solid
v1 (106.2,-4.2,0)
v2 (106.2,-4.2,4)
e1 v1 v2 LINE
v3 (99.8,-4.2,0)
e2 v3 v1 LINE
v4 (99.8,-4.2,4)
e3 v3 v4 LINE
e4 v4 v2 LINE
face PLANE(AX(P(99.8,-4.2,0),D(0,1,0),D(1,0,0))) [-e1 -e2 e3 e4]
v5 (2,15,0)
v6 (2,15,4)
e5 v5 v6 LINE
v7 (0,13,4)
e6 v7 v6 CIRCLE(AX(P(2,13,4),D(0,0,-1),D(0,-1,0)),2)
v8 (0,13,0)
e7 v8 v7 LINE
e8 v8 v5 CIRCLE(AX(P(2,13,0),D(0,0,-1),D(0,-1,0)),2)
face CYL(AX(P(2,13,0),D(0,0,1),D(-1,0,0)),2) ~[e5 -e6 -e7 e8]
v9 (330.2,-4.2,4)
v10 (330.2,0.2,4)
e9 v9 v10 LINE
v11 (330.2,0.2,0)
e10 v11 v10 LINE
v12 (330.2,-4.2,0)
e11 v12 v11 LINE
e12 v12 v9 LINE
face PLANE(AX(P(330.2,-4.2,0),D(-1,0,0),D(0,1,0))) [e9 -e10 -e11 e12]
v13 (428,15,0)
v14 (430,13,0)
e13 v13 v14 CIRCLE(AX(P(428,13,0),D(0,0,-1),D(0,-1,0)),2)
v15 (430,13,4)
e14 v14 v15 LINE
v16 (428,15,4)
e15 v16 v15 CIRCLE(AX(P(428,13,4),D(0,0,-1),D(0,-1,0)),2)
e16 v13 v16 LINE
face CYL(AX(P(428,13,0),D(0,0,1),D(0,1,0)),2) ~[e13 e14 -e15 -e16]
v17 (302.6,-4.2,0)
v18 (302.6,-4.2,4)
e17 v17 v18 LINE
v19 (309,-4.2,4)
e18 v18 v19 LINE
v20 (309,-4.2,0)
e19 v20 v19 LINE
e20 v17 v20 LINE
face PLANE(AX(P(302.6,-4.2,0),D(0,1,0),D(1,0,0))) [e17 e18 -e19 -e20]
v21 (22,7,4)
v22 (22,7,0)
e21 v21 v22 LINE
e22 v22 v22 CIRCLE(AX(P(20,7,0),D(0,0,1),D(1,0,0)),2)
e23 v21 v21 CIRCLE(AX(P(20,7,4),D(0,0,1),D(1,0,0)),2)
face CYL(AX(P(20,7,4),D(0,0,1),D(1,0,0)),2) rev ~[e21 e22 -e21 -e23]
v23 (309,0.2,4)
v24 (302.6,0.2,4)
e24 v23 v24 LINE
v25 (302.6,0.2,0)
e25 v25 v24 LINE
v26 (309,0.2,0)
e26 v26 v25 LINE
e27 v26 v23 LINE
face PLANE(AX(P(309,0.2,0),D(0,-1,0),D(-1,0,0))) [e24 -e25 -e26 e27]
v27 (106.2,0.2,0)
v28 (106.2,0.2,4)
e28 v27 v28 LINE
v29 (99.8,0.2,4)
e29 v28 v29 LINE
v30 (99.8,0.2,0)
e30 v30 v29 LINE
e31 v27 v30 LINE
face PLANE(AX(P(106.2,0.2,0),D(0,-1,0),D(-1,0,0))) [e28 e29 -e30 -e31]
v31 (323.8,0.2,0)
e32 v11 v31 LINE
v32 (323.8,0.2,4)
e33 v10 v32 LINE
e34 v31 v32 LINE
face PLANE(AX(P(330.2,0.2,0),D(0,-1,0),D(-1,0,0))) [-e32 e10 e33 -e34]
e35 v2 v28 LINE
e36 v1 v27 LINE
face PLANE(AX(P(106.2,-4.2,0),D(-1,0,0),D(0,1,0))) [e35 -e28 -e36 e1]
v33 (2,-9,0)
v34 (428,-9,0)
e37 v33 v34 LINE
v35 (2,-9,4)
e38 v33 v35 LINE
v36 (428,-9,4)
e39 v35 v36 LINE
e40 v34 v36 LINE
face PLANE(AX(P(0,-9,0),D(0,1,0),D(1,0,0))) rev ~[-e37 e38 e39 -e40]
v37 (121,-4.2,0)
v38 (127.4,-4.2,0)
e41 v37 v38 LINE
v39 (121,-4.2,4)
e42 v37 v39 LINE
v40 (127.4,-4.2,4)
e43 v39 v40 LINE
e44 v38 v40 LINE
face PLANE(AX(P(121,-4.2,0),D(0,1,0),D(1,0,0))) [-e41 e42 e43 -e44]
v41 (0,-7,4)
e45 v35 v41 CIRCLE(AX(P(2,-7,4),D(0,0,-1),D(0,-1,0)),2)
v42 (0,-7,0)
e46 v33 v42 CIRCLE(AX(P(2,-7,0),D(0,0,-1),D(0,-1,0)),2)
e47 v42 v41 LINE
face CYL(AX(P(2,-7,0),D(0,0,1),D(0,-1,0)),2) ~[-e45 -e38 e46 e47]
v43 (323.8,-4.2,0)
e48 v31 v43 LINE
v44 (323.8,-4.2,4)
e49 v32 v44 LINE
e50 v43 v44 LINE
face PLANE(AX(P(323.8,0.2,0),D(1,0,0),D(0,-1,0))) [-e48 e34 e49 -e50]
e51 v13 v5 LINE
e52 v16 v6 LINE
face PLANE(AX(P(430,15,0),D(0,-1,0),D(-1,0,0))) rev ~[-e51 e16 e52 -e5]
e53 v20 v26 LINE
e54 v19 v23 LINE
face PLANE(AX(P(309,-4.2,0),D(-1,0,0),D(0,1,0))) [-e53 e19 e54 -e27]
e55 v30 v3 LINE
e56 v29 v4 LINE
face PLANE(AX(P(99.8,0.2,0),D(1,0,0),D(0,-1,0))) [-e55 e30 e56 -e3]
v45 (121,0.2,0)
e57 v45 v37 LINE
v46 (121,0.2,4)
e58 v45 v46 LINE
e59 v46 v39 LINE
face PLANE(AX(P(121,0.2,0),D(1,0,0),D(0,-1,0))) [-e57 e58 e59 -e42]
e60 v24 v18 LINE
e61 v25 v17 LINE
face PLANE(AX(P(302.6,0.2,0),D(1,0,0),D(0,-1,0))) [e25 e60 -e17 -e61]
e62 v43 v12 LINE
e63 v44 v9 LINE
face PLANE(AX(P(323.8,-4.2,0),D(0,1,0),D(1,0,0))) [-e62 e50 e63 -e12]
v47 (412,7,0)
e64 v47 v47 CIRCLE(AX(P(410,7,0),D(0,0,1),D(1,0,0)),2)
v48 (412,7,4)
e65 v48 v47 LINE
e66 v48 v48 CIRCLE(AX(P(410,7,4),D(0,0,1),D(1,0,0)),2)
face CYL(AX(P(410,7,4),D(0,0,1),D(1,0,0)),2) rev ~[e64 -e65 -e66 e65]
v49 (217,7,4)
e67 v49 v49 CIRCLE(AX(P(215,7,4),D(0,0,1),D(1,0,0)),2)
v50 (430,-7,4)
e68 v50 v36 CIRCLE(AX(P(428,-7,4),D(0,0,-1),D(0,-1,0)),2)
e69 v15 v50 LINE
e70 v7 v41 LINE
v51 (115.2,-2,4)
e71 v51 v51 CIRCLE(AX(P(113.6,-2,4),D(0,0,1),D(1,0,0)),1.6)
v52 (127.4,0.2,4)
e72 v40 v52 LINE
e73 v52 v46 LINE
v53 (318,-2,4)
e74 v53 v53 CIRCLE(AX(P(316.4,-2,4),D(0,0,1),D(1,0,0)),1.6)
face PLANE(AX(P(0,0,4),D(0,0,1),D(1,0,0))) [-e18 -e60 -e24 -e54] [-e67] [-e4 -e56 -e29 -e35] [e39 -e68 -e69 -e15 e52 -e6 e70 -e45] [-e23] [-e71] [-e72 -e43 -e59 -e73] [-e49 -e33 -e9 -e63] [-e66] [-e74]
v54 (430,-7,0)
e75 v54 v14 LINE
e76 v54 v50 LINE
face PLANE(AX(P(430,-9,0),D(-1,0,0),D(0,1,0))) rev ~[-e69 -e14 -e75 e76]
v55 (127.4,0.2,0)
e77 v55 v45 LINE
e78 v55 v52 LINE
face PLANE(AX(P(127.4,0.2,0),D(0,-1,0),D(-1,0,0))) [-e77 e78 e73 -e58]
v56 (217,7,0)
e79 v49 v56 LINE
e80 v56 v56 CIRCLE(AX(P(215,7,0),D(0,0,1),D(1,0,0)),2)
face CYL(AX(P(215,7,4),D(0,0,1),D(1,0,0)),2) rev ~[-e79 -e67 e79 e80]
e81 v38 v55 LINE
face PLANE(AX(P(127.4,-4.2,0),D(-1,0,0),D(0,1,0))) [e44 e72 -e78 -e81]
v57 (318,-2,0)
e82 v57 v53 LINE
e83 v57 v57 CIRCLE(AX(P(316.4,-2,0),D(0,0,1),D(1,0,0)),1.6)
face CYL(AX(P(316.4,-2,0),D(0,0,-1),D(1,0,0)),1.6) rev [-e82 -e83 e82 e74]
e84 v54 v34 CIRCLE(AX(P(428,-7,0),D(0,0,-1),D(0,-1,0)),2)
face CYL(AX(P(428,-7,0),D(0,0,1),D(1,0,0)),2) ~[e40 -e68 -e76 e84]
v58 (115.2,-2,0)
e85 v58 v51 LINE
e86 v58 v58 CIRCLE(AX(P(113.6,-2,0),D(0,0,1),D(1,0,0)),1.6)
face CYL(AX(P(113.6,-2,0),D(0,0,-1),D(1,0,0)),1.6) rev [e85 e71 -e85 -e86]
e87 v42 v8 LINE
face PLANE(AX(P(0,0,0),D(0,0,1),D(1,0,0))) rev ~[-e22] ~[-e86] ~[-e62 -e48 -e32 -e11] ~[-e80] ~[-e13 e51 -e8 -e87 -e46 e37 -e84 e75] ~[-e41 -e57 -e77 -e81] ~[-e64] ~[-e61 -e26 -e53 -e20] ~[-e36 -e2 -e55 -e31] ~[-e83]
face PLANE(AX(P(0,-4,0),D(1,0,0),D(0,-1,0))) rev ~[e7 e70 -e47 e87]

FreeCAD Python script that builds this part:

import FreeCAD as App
import Part
import Sketcher


def edges_at(feature, points):
    """Names of the edges that pass closest to the given points."""
    edges = feature.Shape.Edges
    near = lambda p: min(range(len(edges)), key=lambda i: edges[i].distToShape(Part.Vertex(*p))[0])
    return sorted({f"Edge{near(p) + 1}" for p in points})

doc = App.newDocument("Part")
body = doc.addObject("PartDesign::Body", "Body")

sketch1 = doc.addObject("Sketcher::SketchObject", "Sketch")
body.addObject(sketch1)
sketch1.AttachmentSupport = (doc.XY_Plane, [""])
sketch1.MapMode = "FlatFace"
sketch1.addGeometry(Part.LineSegment(App.Vector(430, -9, 0), App.Vector(430, 15, 0)), False)
sketch1.addGeometry(Part.LineSegment(App.Vector(430, 15, 0), App.Vector(0, 15, 0)), False)
sketch1.addGeometry(Part.LineSegment(App.Vector(0, 15, 0), App.Vector(0, -9, 0)), False)
sketch1.addGeometry(Part.LineSegment(App.Vector(0, -9, 0), App.Vector(430, -9, 0)), False)
sketch1.addGeometry(Part.LineSegment(App.Vector(99.8, 0.2, 0), App.Vector(106.2, 0.2, 0)), False)
sketch1.addGeometry(Part.LineSegment(App.Vector(106.2, 0.2, 0), App.Vector(106.2, -4.2, 0)), False)
sketch1.addGeometry(Part.LineSegment(App.Vector(106.2, -4.2, 0), App.Vector(99.8, -4.2, 0)), False)
sketch1.addGeometry(Part.LineSegment(App.Vector(99.8, -4.2, 0), App.Vector(99.8, 0.2, 0)), False)
sketch1.addGeometry(Part.Circle(App.Vector(113.6, -2, 0), App.Vector(0, 0, 1), 1.6), False)
sketch1.addGeometry(Part.LineSegment(App.Vector(121, 0.2, 0), App.Vector(127.4, 0.2, 0)), False)
sketch1.addGeometry(Part.LineSegment(App.Vector(127.4, 0.2, 0), App.Vector(127.4, -4.2, 0)), False)
sketch1.addGeometry(Part.LineSegment(App.Vector(127.4, -4.2, 0), App.Vector(121, -4.2, 0)), False)
sketch1.addGeometry(Part.LineSegment(App.Vector(121, -4.2, 0), App.Vector(121, 0.2, 0)), False)
sketch1.addGeometry(Part.LineSegment(App.Vector(302.6, 0.2, 0), App.Vector(309, 0.2, 0)), False)
sketch1.addGeometry(Part.LineSegment(App.Vector(309, 0.2, 0), App.Vector(309, -4.2, 0)), False)
sketch1.addGeometry(Part.LineSegment(App.Vector(309, -4.2, 0), App.Vector(302.6, -4.2, 0)), False)
sketch1.addGeometry(Part.LineSegment(App.Vector(302.6, -4.2, 0), App.Vector(302.6, 0.2, 0)), False)
sketch1.addGeometry(Part.Circle(App.Vector(316.4, -2, 0), App.Vector(0, 0, 1), 1.6), False)
sketch1.addGeometry(Part.LineSegment(App.Vector(323.8, 0.2, 0), App.Vector(330.2, 0.2, 0)), False)
sketch1.addGeometry(Part.LineSegment(App.Vector(330.2, 0.2, 0), App.Vector(330.2, -4.2, 0)), False)
sketch1.addGeometry(Part.LineSegment(App.Vector(330.2, -4.2, 0), App.Vector(323.8, -4.2, 0)), False)
sketch1.addGeometry(Part.LineSegment(App.Vector(323.8, -4.2, 0), App.Vector(323.8, 0.2, 0)), False)
sketch1.addConstraint(Sketcher.Constraint("Coincident", 0, 2, 1, 1))
sketch1.addConstraint(Sketcher.Constraint("Coincident", 1, 2, 2, 1))
sketch1.addConstraint(Sketcher.Constraint("Coincident", 2, 2, 3, 1))
sketch1.addConstraint(Sketcher.Constraint("Coincident", 3, 2, 0, 1))
sketch1.addConstraint(Sketcher.Constraint("Coincident", 4, 2, 5, 1))
sketch1.addConstraint(Sketcher.Constraint("Coincident", 5, 2, 6, 1))
sketch1.addConstraint(Sketcher.Constraint("Coincident", 6, 2, 7, 1))
sketch1.addConstraint(Sketcher.Constraint("Coincident", 7, 2, 4, 1))
sketch1.addConstraint(Sketcher.Constraint("Coincident", 9, 2, 10, 1))
sketch1.addConstraint(Sketcher.Constraint("Coincident", 10, 2, 11, 1))
sketch1.addConstraint(Sketcher.Constraint("Coincident", 11, 2, 12, 1))
sketch1.addConstraint(Sketcher.Constraint("Coincident", 12, 2, 9, 1))
sketch1.addConstraint(Sketcher.Constraint("Coincident", 13, 2, 14, 1))
sketch1.addConstraint(Sketcher.Constraint("Coincident", 14, 2, 15, 1))
sketch1.addConstraint(Sketcher.Constraint("Coincident", 15, 2, 16, 1))
sketch1.addConstraint(Sketcher.Constraint("Coincident", 16, 2, 13, 1))
sketch1.addConstraint(Sketcher.Constraint("Coincident", 18, 2, 19, 1))
sketch1.addConstraint(Sketcher.Constraint("Coincident", 19, 2, 20, 1))
sketch1.addConstraint(Sketcher.Constraint("Coincident", 20, 2, 21, 1))
sketch1.addConstraint(Sketcher.Constraint("Coincident", 21, 2, 18, 1))
sketch1.addConstraint(Sketcher.Constraint("Vertical", 0))
sketch1.addConstraint(Sketcher.Constraint("Horizontal", 1))
sketch1.addConstraint(Sketcher.Constraint("Vertical", 2))
sketch1.addConstraint(Sketcher.Constraint("Horizontal", 3))
sketch1.addConstraint(Sketcher.Constraint("Horizontal", 4))
sketch1.addConstraint(Sketcher.Constraint("Vertical", 5))
sketch1.addConstraint(Sketcher.Constraint("Horizontal", 6))
sketch1.addConstraint(Sketcher.Constraint("Vertical", 7))
sketch1.addConstraint(Sketcher.Constraint("Horizontal", 9))
sketch1.addConstraint(Sketcher.Constraint("Vertical", 10))
sketch1.addConstraint(Sketcher.Constraint("Horizontal", 11))
sketch1.addConstraint(Sketcher.Constraint("Vertical", 12))
sketch1.addConstraint(Sketcher.Constraint("Horizontal", 13))
sketch1.addConstraint(Sketcher.Constraint("Vertical", 14))
sketch1.addConstraint(Sketcher.Constraint("Horizontal", 15))
sketch1.addConstraint(Sketcher.Constraint("Vertical", 16))
sketch1.addConstraint(Sketcher.Constraint("Horizontal", 18))
sketch1.addConstraint(Sketcher.Constraint("Vertical", 19))
sketch1.addConstraint(Sketcher.Constraint("Horizontal", 20))
sketch1.addConstraint(Sketcher.Constraint("Vertical", 21))
sketch1.addConstraint(Sketcher.Constraint("Equal", 8, 17))
sketch1.addConstraint(Sketcher.Constraint("PointOnObject", 1, 2, -2))
sketch1.addConstraint(Sketcher.Constraint("Horizontal", 8, 3, 17, 3))
sketch1.addConstraint(Sketcher.Constraint("Horizontal", 7, 2, 9, 2))
sketch1.addConstraint(Sketcher.Constraint("Horizontal", 6, 2, 10, 2))
sketch1.addConstraint(Sketcher.Constraint("Horizontal", 12, 2, 13, 2))
sketch1.addConstraint(Sketcher.Constraint("Horizontal", 11, 2, 14, 2))
sketch1.addConstraint(Sketcher.Constraint("Horizontal", 16, 2, 18, 2))
sketch1.addConstraint(Sketcher.Constraint("Horizontal", 15, 2, 19, 2))
sketch1.addConstraint(Sketcher.Constraint("Equal", 6, 9))
sketch1.addConstraint(Sketcher.Constraint("Equal", 11, 13))
sketch1.addConstraint(Sketcher.Constraint("Equal", 15, 18))
sketch1.addConstraint(Sketcher.Constraint("Diameter", 8, 3.2))
sketch1.addConstraint(Sketcher.Constraint("DistanceY", -1, 1, 0, 2, 15.0))
sketch1.addConstraint(Sketcher.Constraint("DistanceY", -1, 1, 4, 2, 0.2))
sketch1.addConstraint(Sketcher.Constraint("DistanceX", 1, 2, 1, 1, 430.0))
sketch1.addConstraint(Sketcher.Constraint("DistanceY", 0, 1, 0, 2, 24.0))
sketch1.addConstraint(Sketcher.Constraint("DistanceX", 4, 1, 4, 2, 6.4))
sketch1.addConstraint(Sketcher.Constraint("DistanceY", 5, 2, 5, 1, 4.4))
sketch1.addConstraint(Sketcher.Constraint("DistanceY", 8, 3, -1, 1, 2.0))
sketch1.addConstraint(Sketcher.Constraint("DistanceX", -1, 1, 11, 2, 121.0))
sketch1.addConstraint(Sketcher.Constraint("DistanceX", -1, 1, 13, 2, 309.0))
sketch1.addConstraint(Sketcher.Constraint("DistanceX", -1, 1, 8, 3, 113.6))
sketch1.addConstraint(Sketcher.Constraint("DistanceX", -1, 1, 17, 3, 316.4))
sketch1.addConstraint(Sketcher.Constraint("DistanceX", -1, 1, 4, 2, 106.2))
sketch1.addConstraint(Sketcher.Constraint("DistanceX", -1, 1, 18, 2, 330.2))
pad1 = doc.addObject("PartDesign::Pad", "Pad")
body.addObject(pad1)
pad1.Profile = sketch1
pad1.Length = 4
doc.recompute()

fillet = doc.addObject("PartDesign::Fillet", "Fillet")
body.addObject(fillet)
fillet.Base = (pad1, edges_at(pad1, [
    (0, 15, 2),
    (0, -9, 2),
    (430, 15, 2),
    (430, -9, 2),
]))
fillet.Radius = 2

sketch2 = doc.addObject("Sketcher::SketchObject", "Sketch001")
body.addObject(sketch2)
sketch2.AttachmentSupport = (doc.XY_Plane, [""])
sketch2.MapMode = "FlatFace"
sketch2.AttachmentOffset = App.Placement(App.Vector(0, 0, 4), App.Rotation())
sketch2.addGeometry(Part.Circle(App.Vector(20, 7, 0), App.Vector(0, 0, 1), 2), False)
sketch2.addGeometry(Part.Circle(App.Vector(215, 7, 0), App.Vector(0, 0, 1), 2), False)
sketch2.addGeometry(Part.Circle(App.Vector(410, 7, 0), App.Vector(0, 0, 1), 2), False)
sketch2.addConstraint(Sketcher.Constraint("Equal", 0, 1))
sketch2.addConstraint(Sketcher.Constraint("Equal", 1, 2))
sketch2.addConstraint(Sketcher.Constraint("Horizontal", 0, 3, 1, 3))
sketch2.addConstraint(Sketcher.Constraint("Horizontal", 1, 3, 2, 3))
sketch2.addConstraint(Sketcher.Constraint("Diameter", 0, 4.0))
sketch2.addConstraint(Sketcher.Constraint("DistanceX", -1, 1, 0, 3, 20.0))
sketch2.addConstraint(Sketcher.Constraint("DistanceY", -1, 1, 0, 3, 7.0))
sketch2.addConstraint(Sketcher.Constraint("DistanceX", -1, 1, 1, 3, 215.0))
sketch2.addConstraint(Sketcher.Constraint("DistanceX", -1, 1, 2, 3, 410.0))
pocket1 = doc.addObject("PartDesign::Pocket", "Pocket")
body.addObject(pocket1)
pocket1.Profile = sketch2
pocket1.Length = 4

doc.recompute()
